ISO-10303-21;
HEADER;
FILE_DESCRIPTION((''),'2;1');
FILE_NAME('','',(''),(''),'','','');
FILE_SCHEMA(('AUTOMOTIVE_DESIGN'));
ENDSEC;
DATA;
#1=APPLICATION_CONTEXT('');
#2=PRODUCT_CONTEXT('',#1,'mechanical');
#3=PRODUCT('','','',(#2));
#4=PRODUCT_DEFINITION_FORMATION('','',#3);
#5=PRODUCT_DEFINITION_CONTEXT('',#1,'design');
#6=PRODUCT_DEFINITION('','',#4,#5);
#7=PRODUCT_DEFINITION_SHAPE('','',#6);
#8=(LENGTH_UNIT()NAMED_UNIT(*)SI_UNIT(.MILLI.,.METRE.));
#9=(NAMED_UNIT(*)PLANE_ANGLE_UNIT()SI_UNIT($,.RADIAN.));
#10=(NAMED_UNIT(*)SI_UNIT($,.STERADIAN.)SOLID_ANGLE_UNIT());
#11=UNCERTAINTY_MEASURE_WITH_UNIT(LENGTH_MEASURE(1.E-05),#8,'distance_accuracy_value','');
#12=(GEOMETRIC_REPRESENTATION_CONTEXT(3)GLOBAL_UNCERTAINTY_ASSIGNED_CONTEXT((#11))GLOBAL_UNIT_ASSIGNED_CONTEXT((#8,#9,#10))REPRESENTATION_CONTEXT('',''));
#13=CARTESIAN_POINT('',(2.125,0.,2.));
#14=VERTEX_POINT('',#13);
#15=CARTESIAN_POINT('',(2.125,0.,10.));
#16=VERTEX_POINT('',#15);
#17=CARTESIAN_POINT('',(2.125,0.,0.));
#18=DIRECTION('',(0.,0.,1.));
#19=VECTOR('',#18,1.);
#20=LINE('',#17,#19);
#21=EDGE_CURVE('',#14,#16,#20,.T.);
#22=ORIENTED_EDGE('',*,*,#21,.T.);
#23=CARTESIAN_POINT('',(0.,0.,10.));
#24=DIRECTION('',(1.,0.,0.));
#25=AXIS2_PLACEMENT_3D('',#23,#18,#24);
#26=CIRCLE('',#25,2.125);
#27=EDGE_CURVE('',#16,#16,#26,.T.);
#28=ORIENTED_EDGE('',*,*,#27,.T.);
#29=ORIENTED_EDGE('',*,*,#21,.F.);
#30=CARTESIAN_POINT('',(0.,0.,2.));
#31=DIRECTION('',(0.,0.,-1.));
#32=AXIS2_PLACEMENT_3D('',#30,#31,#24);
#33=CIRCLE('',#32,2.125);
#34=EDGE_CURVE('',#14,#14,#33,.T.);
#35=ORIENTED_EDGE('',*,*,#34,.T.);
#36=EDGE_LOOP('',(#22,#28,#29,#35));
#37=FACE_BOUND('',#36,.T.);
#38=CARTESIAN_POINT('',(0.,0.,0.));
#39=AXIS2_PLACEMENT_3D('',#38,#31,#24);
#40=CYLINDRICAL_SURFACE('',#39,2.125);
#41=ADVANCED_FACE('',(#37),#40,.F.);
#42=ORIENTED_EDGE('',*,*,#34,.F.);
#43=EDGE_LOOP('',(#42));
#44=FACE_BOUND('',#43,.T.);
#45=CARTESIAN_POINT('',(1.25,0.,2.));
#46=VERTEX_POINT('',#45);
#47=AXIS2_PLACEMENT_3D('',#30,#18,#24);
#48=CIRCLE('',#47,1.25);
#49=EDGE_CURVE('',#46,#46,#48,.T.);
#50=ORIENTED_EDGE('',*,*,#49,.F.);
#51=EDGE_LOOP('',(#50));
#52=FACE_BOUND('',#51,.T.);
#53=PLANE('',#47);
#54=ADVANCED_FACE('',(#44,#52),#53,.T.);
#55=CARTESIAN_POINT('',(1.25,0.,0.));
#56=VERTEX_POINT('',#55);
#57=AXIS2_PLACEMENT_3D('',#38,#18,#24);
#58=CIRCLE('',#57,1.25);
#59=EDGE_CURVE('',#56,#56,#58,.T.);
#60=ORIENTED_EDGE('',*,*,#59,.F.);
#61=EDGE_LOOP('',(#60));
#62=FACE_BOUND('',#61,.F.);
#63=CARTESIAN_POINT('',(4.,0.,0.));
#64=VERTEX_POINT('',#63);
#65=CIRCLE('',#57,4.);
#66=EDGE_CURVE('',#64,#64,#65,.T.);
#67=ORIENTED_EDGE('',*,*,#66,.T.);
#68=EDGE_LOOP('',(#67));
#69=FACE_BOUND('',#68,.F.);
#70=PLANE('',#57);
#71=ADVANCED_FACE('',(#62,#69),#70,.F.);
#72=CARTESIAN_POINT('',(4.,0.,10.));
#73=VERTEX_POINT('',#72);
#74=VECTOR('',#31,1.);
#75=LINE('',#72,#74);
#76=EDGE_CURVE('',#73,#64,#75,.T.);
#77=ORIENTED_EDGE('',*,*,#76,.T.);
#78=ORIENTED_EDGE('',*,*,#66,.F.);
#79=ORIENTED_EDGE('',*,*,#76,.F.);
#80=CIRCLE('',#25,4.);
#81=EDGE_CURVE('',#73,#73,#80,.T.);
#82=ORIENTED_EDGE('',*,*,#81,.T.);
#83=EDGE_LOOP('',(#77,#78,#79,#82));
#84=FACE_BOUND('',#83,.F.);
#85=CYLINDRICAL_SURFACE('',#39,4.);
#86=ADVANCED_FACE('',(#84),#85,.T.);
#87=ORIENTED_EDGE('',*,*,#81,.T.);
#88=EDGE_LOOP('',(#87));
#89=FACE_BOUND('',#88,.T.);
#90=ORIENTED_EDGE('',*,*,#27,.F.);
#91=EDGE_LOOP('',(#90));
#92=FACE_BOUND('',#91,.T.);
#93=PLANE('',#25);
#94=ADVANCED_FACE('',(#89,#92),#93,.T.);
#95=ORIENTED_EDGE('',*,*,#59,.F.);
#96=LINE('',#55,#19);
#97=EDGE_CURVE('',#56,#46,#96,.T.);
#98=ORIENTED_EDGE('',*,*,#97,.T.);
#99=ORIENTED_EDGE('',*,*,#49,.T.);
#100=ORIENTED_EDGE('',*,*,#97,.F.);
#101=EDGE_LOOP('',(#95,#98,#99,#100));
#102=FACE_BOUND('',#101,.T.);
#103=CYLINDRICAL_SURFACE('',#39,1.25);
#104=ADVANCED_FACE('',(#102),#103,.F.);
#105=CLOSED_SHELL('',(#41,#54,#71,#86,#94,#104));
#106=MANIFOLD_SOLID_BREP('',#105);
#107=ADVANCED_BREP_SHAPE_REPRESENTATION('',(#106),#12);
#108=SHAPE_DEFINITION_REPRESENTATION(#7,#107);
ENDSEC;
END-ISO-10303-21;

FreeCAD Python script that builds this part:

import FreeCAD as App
import Part
import Sketcher

doc = App.newDocument("Part")
body = doc.addObject("PartDesign::Body", "Body")

# Sketch on XY plane
sketch1 = doc.addObject("Sketcher::SketchObject", "Sketch")
body.addObject(sketch1)
sketch1.AttachmentSupport = (doc.XY_Plane, [""])
sketch1.MapMode = "FlatFace"
sketch1.addGeometry([
    Part.Circle(App.Vector(0, 0, 0), App.Vector(0, 0, 1), 4),
    Part.Circle(App.Vector(0, 0, 0), App.Vector(0, 0, 1), 2.1),
], False)
sketch1.addConstraint([
    Sketcher.Constraint("Coincident", 0, 3, -1, 1),
    Sketcher.Constraint("Coincident", 1, 3, -1, 1),
    Sketcher.Constraint("Diameter", 0, 8.0),
    Sketcher.Constraint("Diameter", 1, 4.25),
])
pad1 = doc.addObject("PartDesign::Pad", "Pad")
body.addObject(pad1)
pad1.Profile = sketch1
pad1.Length = 10

# Sketch on XY plane
sketch2 = doc.addObject("Sketcher::SketchObject", "Sketch001")
body.addObject(sketch2)
sketch2.AttachmentSupport = (doc.XY_Plane, [""])
sketch2.MapMode = "FlatFace"
sketch2.addGeometry([
    Part.Circle(App.Vector(0, 0, 0), App.Vector(0, 0, 1), 4),
    Part.Circle(App.Vector(0, 0, 0), App.Vector(0, 0, 1), 1.2),
], False)
sketch2.addConstraint([
    Sketcher.Constraint("Coincident", 0, 3, -1, 1),
    Sketcher.Constraint("Coincident", 1, 3, -1, 1),
    Sketcher.Constraint("Diameter", 0, 8.0),
    Sketcher.Constraint("Diameter", 1, 2.5),
])
pad2 = doc.addObject("PartDesign::Pad", "Pad001")
body.addObject(pad2)
pad2.Profile = sketch2
pad2.Length = 2

doc.recompute()
